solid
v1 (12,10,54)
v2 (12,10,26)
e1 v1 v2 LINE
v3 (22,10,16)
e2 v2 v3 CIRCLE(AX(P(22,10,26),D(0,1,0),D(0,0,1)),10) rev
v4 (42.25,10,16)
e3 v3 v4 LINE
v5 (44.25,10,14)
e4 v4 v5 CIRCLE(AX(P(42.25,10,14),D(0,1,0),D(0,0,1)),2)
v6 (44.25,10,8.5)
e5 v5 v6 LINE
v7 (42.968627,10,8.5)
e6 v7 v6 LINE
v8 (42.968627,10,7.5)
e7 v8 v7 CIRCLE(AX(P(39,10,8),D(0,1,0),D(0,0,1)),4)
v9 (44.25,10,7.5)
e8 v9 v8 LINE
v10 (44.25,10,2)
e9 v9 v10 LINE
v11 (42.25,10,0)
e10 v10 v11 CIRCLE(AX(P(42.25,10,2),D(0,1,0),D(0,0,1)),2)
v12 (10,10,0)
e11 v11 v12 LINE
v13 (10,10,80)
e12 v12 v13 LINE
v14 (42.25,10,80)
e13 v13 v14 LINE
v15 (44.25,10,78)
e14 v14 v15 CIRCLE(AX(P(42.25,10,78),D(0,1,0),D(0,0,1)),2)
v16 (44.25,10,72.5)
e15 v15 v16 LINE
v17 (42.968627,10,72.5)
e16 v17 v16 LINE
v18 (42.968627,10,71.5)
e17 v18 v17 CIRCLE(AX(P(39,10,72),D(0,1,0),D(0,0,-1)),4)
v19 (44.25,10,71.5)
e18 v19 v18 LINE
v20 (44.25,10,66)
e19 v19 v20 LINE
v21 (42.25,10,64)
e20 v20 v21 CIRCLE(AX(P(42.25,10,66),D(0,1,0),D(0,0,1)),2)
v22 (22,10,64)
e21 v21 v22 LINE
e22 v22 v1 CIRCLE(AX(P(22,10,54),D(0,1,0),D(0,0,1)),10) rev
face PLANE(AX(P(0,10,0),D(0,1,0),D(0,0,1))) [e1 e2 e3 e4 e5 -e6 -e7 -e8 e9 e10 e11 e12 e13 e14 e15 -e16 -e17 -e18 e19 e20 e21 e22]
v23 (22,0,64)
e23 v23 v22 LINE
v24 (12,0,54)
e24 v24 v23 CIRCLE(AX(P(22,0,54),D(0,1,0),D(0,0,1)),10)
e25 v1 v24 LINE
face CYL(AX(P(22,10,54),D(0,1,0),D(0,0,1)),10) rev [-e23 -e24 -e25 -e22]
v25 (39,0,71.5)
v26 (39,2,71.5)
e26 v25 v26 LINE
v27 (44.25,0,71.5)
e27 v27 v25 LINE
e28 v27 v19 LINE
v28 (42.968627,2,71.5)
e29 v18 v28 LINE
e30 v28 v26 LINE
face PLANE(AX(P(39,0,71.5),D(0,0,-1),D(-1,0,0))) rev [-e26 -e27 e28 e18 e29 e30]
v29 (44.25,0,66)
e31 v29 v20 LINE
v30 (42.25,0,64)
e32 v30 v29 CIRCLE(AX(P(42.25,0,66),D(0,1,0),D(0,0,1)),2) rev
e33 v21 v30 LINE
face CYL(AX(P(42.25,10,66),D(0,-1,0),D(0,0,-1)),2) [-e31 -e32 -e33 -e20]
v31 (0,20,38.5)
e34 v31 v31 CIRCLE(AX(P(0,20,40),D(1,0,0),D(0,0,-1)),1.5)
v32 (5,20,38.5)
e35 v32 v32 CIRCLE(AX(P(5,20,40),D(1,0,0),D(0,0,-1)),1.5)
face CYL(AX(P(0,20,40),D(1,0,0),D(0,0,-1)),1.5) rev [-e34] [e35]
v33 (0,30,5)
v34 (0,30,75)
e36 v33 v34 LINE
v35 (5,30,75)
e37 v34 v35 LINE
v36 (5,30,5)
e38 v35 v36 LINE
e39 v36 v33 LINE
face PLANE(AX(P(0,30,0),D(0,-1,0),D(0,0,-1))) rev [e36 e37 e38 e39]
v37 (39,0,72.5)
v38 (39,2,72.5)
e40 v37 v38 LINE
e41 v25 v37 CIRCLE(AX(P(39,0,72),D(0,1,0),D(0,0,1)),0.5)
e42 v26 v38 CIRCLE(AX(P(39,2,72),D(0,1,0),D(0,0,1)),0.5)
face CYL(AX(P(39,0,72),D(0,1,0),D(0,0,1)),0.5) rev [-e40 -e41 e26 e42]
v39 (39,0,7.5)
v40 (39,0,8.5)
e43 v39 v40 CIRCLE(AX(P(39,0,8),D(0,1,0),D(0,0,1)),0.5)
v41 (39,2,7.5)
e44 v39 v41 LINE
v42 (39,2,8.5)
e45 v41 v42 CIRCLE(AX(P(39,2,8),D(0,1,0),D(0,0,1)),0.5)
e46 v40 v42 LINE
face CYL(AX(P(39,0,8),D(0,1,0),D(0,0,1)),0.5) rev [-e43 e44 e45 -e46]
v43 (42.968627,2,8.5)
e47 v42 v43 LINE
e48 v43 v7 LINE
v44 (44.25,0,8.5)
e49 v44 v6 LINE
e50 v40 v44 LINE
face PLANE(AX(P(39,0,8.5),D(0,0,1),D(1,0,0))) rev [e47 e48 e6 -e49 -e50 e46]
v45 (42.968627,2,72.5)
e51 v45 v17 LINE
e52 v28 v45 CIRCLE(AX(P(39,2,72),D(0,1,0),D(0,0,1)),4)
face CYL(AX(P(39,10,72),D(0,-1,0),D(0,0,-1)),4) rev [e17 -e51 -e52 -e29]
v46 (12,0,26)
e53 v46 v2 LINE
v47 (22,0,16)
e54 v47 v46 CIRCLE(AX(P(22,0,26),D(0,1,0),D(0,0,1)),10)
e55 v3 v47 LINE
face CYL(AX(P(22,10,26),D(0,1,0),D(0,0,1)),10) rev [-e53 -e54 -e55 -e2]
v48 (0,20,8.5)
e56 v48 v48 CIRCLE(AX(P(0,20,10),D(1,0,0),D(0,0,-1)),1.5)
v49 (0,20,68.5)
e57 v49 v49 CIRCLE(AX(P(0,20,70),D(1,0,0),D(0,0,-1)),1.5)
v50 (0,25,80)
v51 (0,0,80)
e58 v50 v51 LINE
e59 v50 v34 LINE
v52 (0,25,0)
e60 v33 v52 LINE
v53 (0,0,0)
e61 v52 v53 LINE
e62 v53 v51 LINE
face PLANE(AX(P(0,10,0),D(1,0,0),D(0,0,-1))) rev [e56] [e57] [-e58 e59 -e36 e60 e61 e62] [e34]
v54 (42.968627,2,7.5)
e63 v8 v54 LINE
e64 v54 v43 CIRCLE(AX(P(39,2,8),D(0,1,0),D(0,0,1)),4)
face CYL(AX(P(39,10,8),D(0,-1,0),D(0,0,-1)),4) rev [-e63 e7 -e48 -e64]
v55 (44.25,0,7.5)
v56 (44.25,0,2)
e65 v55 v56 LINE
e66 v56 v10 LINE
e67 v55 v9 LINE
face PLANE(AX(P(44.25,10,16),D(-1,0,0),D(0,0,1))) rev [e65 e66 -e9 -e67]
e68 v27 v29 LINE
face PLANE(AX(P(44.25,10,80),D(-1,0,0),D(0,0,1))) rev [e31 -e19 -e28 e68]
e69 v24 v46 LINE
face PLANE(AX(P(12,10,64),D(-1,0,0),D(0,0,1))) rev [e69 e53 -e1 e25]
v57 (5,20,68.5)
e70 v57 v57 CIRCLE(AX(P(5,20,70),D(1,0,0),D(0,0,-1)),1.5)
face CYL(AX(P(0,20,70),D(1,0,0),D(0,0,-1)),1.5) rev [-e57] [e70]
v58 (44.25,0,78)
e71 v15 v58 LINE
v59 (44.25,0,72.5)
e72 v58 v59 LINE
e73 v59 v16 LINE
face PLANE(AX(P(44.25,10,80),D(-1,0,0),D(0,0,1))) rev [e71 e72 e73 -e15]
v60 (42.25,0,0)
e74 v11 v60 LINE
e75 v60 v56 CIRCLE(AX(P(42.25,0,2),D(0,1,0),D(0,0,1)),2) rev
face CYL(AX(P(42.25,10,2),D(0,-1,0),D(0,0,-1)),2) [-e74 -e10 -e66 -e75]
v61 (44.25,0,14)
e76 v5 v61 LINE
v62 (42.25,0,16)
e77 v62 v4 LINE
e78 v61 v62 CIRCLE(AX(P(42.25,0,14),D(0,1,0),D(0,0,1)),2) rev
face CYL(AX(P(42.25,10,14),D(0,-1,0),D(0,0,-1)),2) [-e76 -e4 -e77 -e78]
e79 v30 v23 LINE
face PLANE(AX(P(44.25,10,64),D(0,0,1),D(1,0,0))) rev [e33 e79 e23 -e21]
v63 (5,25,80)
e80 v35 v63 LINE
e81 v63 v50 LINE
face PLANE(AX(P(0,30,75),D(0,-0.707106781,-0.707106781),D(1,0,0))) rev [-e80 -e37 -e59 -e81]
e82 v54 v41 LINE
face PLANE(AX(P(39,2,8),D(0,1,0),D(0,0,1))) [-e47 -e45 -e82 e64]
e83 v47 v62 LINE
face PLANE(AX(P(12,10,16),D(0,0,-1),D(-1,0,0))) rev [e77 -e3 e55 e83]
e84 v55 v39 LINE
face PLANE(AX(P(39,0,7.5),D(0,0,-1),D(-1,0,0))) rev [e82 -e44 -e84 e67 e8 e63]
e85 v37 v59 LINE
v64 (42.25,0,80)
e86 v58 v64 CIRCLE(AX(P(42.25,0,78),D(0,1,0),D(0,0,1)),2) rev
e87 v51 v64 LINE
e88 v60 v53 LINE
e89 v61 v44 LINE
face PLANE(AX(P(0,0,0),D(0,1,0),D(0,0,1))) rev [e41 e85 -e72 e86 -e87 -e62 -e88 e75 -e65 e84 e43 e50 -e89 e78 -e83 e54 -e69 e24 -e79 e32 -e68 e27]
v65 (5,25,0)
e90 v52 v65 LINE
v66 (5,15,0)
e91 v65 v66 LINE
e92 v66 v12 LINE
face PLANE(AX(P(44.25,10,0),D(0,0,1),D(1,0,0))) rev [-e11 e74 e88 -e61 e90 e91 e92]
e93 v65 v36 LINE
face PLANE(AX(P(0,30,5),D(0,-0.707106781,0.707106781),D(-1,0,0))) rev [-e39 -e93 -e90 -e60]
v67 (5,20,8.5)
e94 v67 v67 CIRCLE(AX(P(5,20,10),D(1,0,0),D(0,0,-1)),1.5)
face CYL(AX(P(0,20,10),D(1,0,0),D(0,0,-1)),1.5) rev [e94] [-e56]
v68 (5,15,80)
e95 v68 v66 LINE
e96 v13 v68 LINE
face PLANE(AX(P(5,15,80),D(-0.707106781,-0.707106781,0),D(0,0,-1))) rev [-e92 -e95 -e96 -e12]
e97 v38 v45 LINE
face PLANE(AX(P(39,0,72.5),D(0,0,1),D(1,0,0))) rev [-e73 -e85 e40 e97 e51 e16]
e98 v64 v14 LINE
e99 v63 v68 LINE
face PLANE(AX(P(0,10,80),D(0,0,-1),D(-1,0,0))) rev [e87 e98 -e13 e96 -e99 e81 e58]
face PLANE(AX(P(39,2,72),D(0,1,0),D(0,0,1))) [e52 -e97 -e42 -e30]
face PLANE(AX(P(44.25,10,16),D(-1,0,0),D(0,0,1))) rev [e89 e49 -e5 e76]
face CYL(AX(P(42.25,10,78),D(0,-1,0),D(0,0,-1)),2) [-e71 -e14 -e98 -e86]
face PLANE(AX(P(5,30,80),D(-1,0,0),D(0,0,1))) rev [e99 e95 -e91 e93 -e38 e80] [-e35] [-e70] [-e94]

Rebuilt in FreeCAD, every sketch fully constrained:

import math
import FreeCAD as App
import Part
import Sketcher


def edges_at(feature, points):
    """Names of the edges that pass closest to the given points."""
    edges = feature.Shape.Edges
    near = lambda p: min(range(len(edges)), key=lambda i: edges[i].distToShape(Part.Vertex(*p))[0])
    return sorted({f"Edge{near(p) + 1}" for p in points})


def add_polygon(sketch, points):
    """Adds a closed chain of lines whose ends are joined by coincident constraints."""
    first, n = sketch.GeometryCount, len(points)
    for a, b in zip(points, points[1:] + points[:1]):
        sketch.addGeometry(Part.LineSegment(App.Vector(*a, 0), App.Vector(*b, 0)), False)
    for i in range(n):
        sketch.addConstraint(Sketcher.Constraint("Coincident", first + i, 2, first + (i + 1) % n, 1))

doc = App.newDocument("Part")
body = doc.addObject("PartDesign::Body", "Body")

# Sketch on XZ plane
sketch1 = body.newObject("Sketcher::SketchObject", "Sketch")
sketch1.AttachmentSupport = (doc.getObject("XZ_Plane"), [""])
sketch1.MapMode = "FlatFace"
add_polygon(sketch1, [(0, 0), (0, 80), (44.2, 80), (44.2, 64), (12, 64), (12, 16), (44.2, 16), (44.2, 0)])  # lines 0-7
sketch1.addGeometry(Part.Circle(App.Vector(39, 72, 0), App.Vector(0, 0, 1), 4), False)  # 8
sketch1.addGeometry(Part.Circle(App.Vector(39, 8, 0), App.Vector(0, 0, 1), 4), False)  # 9
sketch1.addConstraint([
    Sketcher.Constraint("Vertical", 0),
    Sketcher.Constraint("Horizontal", 1),
    Sketcher.Constraint("Vertical", 2),
    Sketcher.Constraint("Horizontal", 3),
    Sketcher.Constraint("Vertical", 4),
    Sketcher.Constraint("Horizontal", 5),
    Sketcher.Constraint("Vertical", 6),
    Sketcher.Constraint("Horizontal", 7),
    Sketcher.Constraint("Coincident", 7, 2, -1, 1),
    Sketcher.Constraint("Equal", 8, 9),
    Sketcher.Constraint("Vertical", 8, 3, 9, 3),
    Sketcher.Constraint("Vertical", 2, 2, 5, 2),
    Sketcher.Constraint("Equal", 2, 6),
    Sketcher.Constraint("Diameter", 8, 8.0),
    Sketcher.Constraint("DistanceY", 0, 1, 0, 2, 80.0),
    Sketcher.Constraint("DistanceY", 2, 2, 2, 1, 16.0),
    Sketcher.Constraint("DistanceX", -1, 1, 8, 3, 39.0),
    Sketcher.Constraint("DistanceY", -1, 1, 8, 3, 72.0),
    Sketcher.Constraint("DistanceY", -1, 1, 9, 3, 8.0),
    Sketcher.Constraint("DistanceX", -1, 1, 3, 2, 12.0),
    Sketcher.Constraint("DistanceX", 1, 1, 1, 2, 44.25),
])
pad1 = body.newObject("PartDesign::Pad", "Pad")
pad1.Profile = sketch1
pad1.Length = 10
pad1.Reversed = True

# Sketch on XZ plane
sketch2 = body.newObject("Sketcher::SketchObject", "Sketch001")
sketch2.AttachmentSupport = (doc.getObject("XZ_Plane"), [""])
sketch2.MapMode = "FlatFace"
sketch2.AttachmentOffset = App.Placement(App.Vector(0, 0, -10), App.Rotation())
add_polygon(sketch2, [(0, 0), (0, 80), (5, 80), (5, 0)])  # lines 0-3
sketch2.addConstraint([
    Sketcher.Constraint("Vertical", 0),
    Sketcher.Constraint("Horizontal", 1),
    Sketcher.Constraint("Vertical", 2),
    Sketcher.Constraint("Horizontal", 3),
    Sketcher.Constraint("Coincident", 3, 2, -1, 1),
    Sketcher.Constraint("DistanceX", 1, 1, 1, 2, 5.0),
    Sketcher.Constraint("DistanceY", 0, 1, 0, 2, 80.0),
])
pad2 = body.newObject("PartDesign::Pad", "Pad001")
pad2.Profile = sketch2
pad2.Length = 20
pad2.Reversed = True

# Sketch on XZ plane
sketch3 = body.newObject("Sketcher::SketchObject", "Sketch002")
sketch3.AttachmentSupport = (doc.getObject("XZ_Plane"), [""])
sketch3.MapMode = "FlatFace"
sketch3.addGeometry([
    Part.Circle(App.Vector(39, 72, 0), App.Vector(0, 0, 1), 4),
    Part.Circle(App.Vector(39, 8, 0), App.Vector(0, 0, 1), 4),
], False)
sketch3.addConstraint([
    Sketcher.Constraint("Equal", 0, 1),
    Sketcher.Constraint("Vertical", 0, 3, 1, 3),
    Sketcher.Constraint("Diameter", 0, 8.0),
    Sketcher.Constraint("DistanceX", -1, 1, 0, 3, 39.0),
    Sketcher.Constraint("DistanceY", -1, 1, 0, 3, 72.0),
    Sketcher.Constraint("DistanceY", -1, 1, 1, 3, 8.0),
])
pad3 = body.newObject("PartDesign::Pad", "Pad002")
pad3.Profile = sketch3
pad3.Length = 2
pad3.Reversed = True

# Sketch on YZ plane
sketch4 = body.newObject("Sketcher::SketchObject", "Sketch003")
sketch4.AttachmentSupport = (doc.getObject("YZ_Plane"), [""])
sketch4.MapMode = "FlatFace"
sketch4.AttachmentOffset = App.Placement(App.Vector(0, 0, 5), App.Rotation())
sketch4.addGeometry([
    Part.Circle(App.Vector(20, 70, 0), App.Vector(0, 0, 1), 1.5),
    Part.Circle(App.Vector(20, 40, 0), App.Vector(0, 0, 1), 1.5),
    Part.Circle(App.Vector(20, 10, 0), App.Vector(0, 0, 1), 1.5),
], False)
sketch4.addConstraint([
    Sketcher.Constraint("Equal", 0, 1),
    Sketcher.Constraint("Equal", 1, 2),
    Sketcher.Constraint("Vertical", 0, 3, 1, 3),
    Sketcher.Constraint("Vertical", 1, 3, 2, 3),
    Sketcher.Constraint("Diameter", 0, 3.0),
    Sketcher.Constraint("DistanceX", -1, 1, 0, 3, 20.0),
    Sketcher.Constraint("DistanceY", -1, 1, 0, 3, 70.0),
    Sketcher.Constraint("DistanceY", -1, 1, 1, 3, 40.0),
    Sketcher.Constraint("DistanceY", -1, 1, 2, 3, 10.0),
])
pocket1 = body.newObject("PartDesign::Pocket", "Pocket")
pocket1.Profile = sketch4
pocket1.Type = "ThroughAll"

# Sketch on XZ plane
sketch5 = body.newObject("Sketcher::SketchObject", "Sketch004")
sketch5.AttachmentSupport = (doc.getObject("XZ_Plane"), [""])
sketch5.MapMode = "FlatFace"
sketch5.AttachmentOffset = App.Placement(App.Vector(0, 0, -10), App.Rotation())
sketch5.addGeometry([
    Part.LineSegment(App.Vector(44.2, 7.5, 0), App.Vector(39, 7.5, 0)),  # 0
    Part.ArcOfCircle(Part.Circle(App.Vector(39, 8, 0), App.Vector(0, 0, 1), 0.5), math.radians(90), math.radians(270)),  # 1
    Part.LineSegment(App.Vector(39, 8.5, 0), App.Vector(44.2, 8.5, 0)),  # 2
    Part.ArcOfCircle(Part.Circle(App.Vector(44.2, 8, 0), App.Vector(0, 0, 1), 0.5), math.radians(-90), math.radians(90)),  # 3
    Part.LineSegment(App.Vector(44.2, 71.5, 0), App.Vector(39, 71.5, 0)),  # 4
    Part.ArcOfCircle(Part.Circle(App.Vector(39, 72, 0), App.Vector(0, 0, 1), 0.5), math.radians(90), math.radians(270)),  # 5
    Part.LineSegment(App.Vector(39, 72.5, 0), App.Vector(44.2, 72.5, 0)),  # 6
    Part.ArcOfCircle(Part.Circle(App.Vector(44.2, 72, 0), App.Vector(0, 0, 1), 0.5), math.radians(-90), math.radians(90)),  # 7
], False)
sketch5.addConstraint([
    Sketcher.Constraint("Tangent", 0, 2, 1, 2),
    Sketcher.Constraint("Tangent", 1, 1, 2, 1),
    Sketcher.Constraint("Tangent", 2, 2, 3, 2),
    Sketcher.Constraint("Tangent", 3, 1, 0, 1),
    Sketcher.Constraint("Tangent", 4, 2, 5, 2),
    Sketcher.Constraint("Tangent", 5, 1, 6, 1),
    Sketcher.Constraint("Tangent", 6, 2, 7, 2),
    Sketcher.Constraint("Tangent", 7, 1, 4, 1),
    Sketcher.Constraint("Horizontal", 0),
    Sketcher.Constraint("Horizontal", 2),
    Sketcher.Constraint("Horizontal", 4),
    Sketcher.Constraint("Horizontal", 6),
    Sketcher.Constraint("Equal", 3, 5),
    Sketcher.Constraint("Vertical", 1, 3, 5, 3),
    Sketcher.Constraint("Vertical", 3, 3, 7, 3),
    Sketcher.Constraint("Radius", 1, 0.5),
    Sketcher.Constraint("DistanceX", -1, 1, 1, 3, 39.0),
    Sketcher.Constraint("DistanceY", -1, 1, 1, 3, 8.0),
    Sketcher.Constraint("DistanceY", -1, 1, 5, 3, 72.0),
    Sketcher.Constraint("DistanceX", 0, 2, 0, 1, 5.25),
])
pocket2 = body.newObject("PartDesign::Pocket", "Pocket001")
pocket2.Profile = sketch5
pocket2.Type = "ThroughAll"
pocket2.Reversed = True
doc.recompute()

chamfer = body.newObject("PartDesign::Chamfer", "Chamfer")
chamfer.Base = (pocket2, edges_at(pocket2, [(5, 10, 40)]))
chamfer.Size = 5
doc.recompute()

fillet = body.newObject("PartDesign::Fillet", "Fillet")
fillet.Base = (chamfer, edges_at(chamfer, [
    (44.25, 5, 0),
    (44.25, 5, 16),
    (44.25, 5, 64),
    (44.25, 5, 80),
]))
fillet.Radius = 2
doc.recompute()

fillet2 = body.newObject("PartDesign::Fillet", "Fillet001")
fillet2.Base = (fillet, edges_at(fillet, [(12, 5, 16), (12, 5, 64)]))
fillet2.Radius = 10
doc.recompute()

chamfer2 = body.newObject("PartDesign::Chamfer", "Chamfer001")
chamfer2.Base = (fillet2, edges_at(fillet2, [(2.5, 30, 80), (2.5, 30, 0)]))
chamfer2.Size = 5

doc.recompute()
